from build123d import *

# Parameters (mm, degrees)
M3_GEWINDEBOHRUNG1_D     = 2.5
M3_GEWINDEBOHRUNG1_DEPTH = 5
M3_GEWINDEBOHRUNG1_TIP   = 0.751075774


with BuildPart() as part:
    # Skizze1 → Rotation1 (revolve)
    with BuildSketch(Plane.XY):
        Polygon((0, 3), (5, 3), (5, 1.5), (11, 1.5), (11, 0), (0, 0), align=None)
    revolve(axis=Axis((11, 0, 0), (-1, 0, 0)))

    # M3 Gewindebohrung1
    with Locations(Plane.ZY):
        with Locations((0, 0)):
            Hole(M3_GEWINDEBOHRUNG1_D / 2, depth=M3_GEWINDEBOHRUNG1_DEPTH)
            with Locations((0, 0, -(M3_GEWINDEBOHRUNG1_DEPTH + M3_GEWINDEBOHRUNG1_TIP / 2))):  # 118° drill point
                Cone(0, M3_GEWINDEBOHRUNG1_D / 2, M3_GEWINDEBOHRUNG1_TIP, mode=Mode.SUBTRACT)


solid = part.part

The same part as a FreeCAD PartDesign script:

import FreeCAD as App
import Part
import Sketcher

V = App.Vector

doc = App.newDocument("Part")
body = doc.addObject("PartDesign::Body", "Body")

# Sketch on XY plane
sketch1 = body.newObject("Sketcher::SketchObject", "Sketch")
sketch1.AttachmentSupport = (doc.getObject("XY_Plane"), [""])
sketch1.MapMode = "FlatFace"
sketch1.addGeometry(Part.LineSegment(V(5, 3, 0), V(0, 3, 0)), False)
sketch1.addGeometry(Part.LineSegment(V(0, 3, 0), V(0, 0, 0)), False)
sketch1.addGeometry(Part.LineSegment(V(0, 0, 0), V(11, 0, 0)), False)
sketch1.addGeometry(Part.LineSegment(V(11, 0, 0), V(11, 1.5, 0)), False)
sketch1.addGeometry(Part.LineSegment(V(11, 1.5, 0), V(5, 1.5, 0)), False)
sketch1.addGeometry(Part.LineSegment(V(5, 1.5, 0), V(5, 3, 0)), False)
sketch1.addConstraint(Sketcher.Constraint("Coincident", 0, 2, 1, 1))
sketch1.addConstraint(Sketcher.Constraint("Coincident", 1, 2, 2, 1))
sketch1.addConstraint(Sketcher.Constraint("Coincident", 2, 2, 3, 1))
sketch1.addConstraint(Sketcher.Constraint("Coincident", 3, 2, 4, 1))
sketch1.addConstraint(Sketcher.Constraint("Coincident", 4, 2, 5, 1))
sketch1.addConstraint(Sketcher.Constraint("Coincident", 5, 2, 0, 1))
sketch1.addConstraint(Sketcher.Constraint("Horizontal", 0))
sketch1.addConstraint(Sketcher.Constraint("Vertical", 1))
sketch1.addConstraint(Sketcher.Constraint("Horizontal", 2))
sketch1.addConstraint(Sketcher.Constraint("Vertical", 3))
sketch1.addConstraint(Sketcher.Constraint("Horizontal", 4))
sketch1.addConstraint(Sketcher.Constraint("Vertical", 5))
sketch1.addConstraint(Sketcher.Constraint("Coincident", 1, 2, -1, 1))
sketch1.addConstraint(Sketcher.Constraint("Equal", 3, 5))
sketch1.addConstraint(Sketcher.Constraint("DistanceX", 0, 2, 0, 1, 5.0))
sketch1.addConstraint(Sketcher.Constraint("DistanceX", 2, 1, 2, 2, 11.0))
sketch1.addConstraint(Sketcher.Constraint("DistanceY", 1, 2, 1, 1, 3.0))
revolution = body.newObject("PartDesign::Revolution", "Revolution")
revolution.Profile = sketch1
revolution.ReferenceAxis = (sketch1, ["H_Axis"])
revolution.Angle = 360

# Sketch on YZ plane
sketch2 = body.newObject("Sketcher::SketchObject", "Sketch001")
sketch2.AttachmentSupport = (doc.getObject("YZ_Plane"), [""])
sketch2.MapMode = "FlatFace"
sketch2.addGeometry(Part.Circle(V(0, 0, 0), V(0, 0, 1), 1.25), False)
sketch2.addConstraint(Sketcher.Constraint("Coincident", 0, 3, -1, 1))
sketch2.addConstraint(Sketcher.Constraint("Diameter", 0, 2.5))
doc.recompute()
hole = body.newObject("PartDesign::Hole", "Hole")
hole.Profile = sketch2
hole.ThreadType = "None"
hole.Diameter = 2.5
hole.DepthType = "Dimension"
hole.Depth = 5
hole.DrillPoint = "Angled"
hole.DrillPointAngle = 118
hole.Reversed = True

doc.recompute()
